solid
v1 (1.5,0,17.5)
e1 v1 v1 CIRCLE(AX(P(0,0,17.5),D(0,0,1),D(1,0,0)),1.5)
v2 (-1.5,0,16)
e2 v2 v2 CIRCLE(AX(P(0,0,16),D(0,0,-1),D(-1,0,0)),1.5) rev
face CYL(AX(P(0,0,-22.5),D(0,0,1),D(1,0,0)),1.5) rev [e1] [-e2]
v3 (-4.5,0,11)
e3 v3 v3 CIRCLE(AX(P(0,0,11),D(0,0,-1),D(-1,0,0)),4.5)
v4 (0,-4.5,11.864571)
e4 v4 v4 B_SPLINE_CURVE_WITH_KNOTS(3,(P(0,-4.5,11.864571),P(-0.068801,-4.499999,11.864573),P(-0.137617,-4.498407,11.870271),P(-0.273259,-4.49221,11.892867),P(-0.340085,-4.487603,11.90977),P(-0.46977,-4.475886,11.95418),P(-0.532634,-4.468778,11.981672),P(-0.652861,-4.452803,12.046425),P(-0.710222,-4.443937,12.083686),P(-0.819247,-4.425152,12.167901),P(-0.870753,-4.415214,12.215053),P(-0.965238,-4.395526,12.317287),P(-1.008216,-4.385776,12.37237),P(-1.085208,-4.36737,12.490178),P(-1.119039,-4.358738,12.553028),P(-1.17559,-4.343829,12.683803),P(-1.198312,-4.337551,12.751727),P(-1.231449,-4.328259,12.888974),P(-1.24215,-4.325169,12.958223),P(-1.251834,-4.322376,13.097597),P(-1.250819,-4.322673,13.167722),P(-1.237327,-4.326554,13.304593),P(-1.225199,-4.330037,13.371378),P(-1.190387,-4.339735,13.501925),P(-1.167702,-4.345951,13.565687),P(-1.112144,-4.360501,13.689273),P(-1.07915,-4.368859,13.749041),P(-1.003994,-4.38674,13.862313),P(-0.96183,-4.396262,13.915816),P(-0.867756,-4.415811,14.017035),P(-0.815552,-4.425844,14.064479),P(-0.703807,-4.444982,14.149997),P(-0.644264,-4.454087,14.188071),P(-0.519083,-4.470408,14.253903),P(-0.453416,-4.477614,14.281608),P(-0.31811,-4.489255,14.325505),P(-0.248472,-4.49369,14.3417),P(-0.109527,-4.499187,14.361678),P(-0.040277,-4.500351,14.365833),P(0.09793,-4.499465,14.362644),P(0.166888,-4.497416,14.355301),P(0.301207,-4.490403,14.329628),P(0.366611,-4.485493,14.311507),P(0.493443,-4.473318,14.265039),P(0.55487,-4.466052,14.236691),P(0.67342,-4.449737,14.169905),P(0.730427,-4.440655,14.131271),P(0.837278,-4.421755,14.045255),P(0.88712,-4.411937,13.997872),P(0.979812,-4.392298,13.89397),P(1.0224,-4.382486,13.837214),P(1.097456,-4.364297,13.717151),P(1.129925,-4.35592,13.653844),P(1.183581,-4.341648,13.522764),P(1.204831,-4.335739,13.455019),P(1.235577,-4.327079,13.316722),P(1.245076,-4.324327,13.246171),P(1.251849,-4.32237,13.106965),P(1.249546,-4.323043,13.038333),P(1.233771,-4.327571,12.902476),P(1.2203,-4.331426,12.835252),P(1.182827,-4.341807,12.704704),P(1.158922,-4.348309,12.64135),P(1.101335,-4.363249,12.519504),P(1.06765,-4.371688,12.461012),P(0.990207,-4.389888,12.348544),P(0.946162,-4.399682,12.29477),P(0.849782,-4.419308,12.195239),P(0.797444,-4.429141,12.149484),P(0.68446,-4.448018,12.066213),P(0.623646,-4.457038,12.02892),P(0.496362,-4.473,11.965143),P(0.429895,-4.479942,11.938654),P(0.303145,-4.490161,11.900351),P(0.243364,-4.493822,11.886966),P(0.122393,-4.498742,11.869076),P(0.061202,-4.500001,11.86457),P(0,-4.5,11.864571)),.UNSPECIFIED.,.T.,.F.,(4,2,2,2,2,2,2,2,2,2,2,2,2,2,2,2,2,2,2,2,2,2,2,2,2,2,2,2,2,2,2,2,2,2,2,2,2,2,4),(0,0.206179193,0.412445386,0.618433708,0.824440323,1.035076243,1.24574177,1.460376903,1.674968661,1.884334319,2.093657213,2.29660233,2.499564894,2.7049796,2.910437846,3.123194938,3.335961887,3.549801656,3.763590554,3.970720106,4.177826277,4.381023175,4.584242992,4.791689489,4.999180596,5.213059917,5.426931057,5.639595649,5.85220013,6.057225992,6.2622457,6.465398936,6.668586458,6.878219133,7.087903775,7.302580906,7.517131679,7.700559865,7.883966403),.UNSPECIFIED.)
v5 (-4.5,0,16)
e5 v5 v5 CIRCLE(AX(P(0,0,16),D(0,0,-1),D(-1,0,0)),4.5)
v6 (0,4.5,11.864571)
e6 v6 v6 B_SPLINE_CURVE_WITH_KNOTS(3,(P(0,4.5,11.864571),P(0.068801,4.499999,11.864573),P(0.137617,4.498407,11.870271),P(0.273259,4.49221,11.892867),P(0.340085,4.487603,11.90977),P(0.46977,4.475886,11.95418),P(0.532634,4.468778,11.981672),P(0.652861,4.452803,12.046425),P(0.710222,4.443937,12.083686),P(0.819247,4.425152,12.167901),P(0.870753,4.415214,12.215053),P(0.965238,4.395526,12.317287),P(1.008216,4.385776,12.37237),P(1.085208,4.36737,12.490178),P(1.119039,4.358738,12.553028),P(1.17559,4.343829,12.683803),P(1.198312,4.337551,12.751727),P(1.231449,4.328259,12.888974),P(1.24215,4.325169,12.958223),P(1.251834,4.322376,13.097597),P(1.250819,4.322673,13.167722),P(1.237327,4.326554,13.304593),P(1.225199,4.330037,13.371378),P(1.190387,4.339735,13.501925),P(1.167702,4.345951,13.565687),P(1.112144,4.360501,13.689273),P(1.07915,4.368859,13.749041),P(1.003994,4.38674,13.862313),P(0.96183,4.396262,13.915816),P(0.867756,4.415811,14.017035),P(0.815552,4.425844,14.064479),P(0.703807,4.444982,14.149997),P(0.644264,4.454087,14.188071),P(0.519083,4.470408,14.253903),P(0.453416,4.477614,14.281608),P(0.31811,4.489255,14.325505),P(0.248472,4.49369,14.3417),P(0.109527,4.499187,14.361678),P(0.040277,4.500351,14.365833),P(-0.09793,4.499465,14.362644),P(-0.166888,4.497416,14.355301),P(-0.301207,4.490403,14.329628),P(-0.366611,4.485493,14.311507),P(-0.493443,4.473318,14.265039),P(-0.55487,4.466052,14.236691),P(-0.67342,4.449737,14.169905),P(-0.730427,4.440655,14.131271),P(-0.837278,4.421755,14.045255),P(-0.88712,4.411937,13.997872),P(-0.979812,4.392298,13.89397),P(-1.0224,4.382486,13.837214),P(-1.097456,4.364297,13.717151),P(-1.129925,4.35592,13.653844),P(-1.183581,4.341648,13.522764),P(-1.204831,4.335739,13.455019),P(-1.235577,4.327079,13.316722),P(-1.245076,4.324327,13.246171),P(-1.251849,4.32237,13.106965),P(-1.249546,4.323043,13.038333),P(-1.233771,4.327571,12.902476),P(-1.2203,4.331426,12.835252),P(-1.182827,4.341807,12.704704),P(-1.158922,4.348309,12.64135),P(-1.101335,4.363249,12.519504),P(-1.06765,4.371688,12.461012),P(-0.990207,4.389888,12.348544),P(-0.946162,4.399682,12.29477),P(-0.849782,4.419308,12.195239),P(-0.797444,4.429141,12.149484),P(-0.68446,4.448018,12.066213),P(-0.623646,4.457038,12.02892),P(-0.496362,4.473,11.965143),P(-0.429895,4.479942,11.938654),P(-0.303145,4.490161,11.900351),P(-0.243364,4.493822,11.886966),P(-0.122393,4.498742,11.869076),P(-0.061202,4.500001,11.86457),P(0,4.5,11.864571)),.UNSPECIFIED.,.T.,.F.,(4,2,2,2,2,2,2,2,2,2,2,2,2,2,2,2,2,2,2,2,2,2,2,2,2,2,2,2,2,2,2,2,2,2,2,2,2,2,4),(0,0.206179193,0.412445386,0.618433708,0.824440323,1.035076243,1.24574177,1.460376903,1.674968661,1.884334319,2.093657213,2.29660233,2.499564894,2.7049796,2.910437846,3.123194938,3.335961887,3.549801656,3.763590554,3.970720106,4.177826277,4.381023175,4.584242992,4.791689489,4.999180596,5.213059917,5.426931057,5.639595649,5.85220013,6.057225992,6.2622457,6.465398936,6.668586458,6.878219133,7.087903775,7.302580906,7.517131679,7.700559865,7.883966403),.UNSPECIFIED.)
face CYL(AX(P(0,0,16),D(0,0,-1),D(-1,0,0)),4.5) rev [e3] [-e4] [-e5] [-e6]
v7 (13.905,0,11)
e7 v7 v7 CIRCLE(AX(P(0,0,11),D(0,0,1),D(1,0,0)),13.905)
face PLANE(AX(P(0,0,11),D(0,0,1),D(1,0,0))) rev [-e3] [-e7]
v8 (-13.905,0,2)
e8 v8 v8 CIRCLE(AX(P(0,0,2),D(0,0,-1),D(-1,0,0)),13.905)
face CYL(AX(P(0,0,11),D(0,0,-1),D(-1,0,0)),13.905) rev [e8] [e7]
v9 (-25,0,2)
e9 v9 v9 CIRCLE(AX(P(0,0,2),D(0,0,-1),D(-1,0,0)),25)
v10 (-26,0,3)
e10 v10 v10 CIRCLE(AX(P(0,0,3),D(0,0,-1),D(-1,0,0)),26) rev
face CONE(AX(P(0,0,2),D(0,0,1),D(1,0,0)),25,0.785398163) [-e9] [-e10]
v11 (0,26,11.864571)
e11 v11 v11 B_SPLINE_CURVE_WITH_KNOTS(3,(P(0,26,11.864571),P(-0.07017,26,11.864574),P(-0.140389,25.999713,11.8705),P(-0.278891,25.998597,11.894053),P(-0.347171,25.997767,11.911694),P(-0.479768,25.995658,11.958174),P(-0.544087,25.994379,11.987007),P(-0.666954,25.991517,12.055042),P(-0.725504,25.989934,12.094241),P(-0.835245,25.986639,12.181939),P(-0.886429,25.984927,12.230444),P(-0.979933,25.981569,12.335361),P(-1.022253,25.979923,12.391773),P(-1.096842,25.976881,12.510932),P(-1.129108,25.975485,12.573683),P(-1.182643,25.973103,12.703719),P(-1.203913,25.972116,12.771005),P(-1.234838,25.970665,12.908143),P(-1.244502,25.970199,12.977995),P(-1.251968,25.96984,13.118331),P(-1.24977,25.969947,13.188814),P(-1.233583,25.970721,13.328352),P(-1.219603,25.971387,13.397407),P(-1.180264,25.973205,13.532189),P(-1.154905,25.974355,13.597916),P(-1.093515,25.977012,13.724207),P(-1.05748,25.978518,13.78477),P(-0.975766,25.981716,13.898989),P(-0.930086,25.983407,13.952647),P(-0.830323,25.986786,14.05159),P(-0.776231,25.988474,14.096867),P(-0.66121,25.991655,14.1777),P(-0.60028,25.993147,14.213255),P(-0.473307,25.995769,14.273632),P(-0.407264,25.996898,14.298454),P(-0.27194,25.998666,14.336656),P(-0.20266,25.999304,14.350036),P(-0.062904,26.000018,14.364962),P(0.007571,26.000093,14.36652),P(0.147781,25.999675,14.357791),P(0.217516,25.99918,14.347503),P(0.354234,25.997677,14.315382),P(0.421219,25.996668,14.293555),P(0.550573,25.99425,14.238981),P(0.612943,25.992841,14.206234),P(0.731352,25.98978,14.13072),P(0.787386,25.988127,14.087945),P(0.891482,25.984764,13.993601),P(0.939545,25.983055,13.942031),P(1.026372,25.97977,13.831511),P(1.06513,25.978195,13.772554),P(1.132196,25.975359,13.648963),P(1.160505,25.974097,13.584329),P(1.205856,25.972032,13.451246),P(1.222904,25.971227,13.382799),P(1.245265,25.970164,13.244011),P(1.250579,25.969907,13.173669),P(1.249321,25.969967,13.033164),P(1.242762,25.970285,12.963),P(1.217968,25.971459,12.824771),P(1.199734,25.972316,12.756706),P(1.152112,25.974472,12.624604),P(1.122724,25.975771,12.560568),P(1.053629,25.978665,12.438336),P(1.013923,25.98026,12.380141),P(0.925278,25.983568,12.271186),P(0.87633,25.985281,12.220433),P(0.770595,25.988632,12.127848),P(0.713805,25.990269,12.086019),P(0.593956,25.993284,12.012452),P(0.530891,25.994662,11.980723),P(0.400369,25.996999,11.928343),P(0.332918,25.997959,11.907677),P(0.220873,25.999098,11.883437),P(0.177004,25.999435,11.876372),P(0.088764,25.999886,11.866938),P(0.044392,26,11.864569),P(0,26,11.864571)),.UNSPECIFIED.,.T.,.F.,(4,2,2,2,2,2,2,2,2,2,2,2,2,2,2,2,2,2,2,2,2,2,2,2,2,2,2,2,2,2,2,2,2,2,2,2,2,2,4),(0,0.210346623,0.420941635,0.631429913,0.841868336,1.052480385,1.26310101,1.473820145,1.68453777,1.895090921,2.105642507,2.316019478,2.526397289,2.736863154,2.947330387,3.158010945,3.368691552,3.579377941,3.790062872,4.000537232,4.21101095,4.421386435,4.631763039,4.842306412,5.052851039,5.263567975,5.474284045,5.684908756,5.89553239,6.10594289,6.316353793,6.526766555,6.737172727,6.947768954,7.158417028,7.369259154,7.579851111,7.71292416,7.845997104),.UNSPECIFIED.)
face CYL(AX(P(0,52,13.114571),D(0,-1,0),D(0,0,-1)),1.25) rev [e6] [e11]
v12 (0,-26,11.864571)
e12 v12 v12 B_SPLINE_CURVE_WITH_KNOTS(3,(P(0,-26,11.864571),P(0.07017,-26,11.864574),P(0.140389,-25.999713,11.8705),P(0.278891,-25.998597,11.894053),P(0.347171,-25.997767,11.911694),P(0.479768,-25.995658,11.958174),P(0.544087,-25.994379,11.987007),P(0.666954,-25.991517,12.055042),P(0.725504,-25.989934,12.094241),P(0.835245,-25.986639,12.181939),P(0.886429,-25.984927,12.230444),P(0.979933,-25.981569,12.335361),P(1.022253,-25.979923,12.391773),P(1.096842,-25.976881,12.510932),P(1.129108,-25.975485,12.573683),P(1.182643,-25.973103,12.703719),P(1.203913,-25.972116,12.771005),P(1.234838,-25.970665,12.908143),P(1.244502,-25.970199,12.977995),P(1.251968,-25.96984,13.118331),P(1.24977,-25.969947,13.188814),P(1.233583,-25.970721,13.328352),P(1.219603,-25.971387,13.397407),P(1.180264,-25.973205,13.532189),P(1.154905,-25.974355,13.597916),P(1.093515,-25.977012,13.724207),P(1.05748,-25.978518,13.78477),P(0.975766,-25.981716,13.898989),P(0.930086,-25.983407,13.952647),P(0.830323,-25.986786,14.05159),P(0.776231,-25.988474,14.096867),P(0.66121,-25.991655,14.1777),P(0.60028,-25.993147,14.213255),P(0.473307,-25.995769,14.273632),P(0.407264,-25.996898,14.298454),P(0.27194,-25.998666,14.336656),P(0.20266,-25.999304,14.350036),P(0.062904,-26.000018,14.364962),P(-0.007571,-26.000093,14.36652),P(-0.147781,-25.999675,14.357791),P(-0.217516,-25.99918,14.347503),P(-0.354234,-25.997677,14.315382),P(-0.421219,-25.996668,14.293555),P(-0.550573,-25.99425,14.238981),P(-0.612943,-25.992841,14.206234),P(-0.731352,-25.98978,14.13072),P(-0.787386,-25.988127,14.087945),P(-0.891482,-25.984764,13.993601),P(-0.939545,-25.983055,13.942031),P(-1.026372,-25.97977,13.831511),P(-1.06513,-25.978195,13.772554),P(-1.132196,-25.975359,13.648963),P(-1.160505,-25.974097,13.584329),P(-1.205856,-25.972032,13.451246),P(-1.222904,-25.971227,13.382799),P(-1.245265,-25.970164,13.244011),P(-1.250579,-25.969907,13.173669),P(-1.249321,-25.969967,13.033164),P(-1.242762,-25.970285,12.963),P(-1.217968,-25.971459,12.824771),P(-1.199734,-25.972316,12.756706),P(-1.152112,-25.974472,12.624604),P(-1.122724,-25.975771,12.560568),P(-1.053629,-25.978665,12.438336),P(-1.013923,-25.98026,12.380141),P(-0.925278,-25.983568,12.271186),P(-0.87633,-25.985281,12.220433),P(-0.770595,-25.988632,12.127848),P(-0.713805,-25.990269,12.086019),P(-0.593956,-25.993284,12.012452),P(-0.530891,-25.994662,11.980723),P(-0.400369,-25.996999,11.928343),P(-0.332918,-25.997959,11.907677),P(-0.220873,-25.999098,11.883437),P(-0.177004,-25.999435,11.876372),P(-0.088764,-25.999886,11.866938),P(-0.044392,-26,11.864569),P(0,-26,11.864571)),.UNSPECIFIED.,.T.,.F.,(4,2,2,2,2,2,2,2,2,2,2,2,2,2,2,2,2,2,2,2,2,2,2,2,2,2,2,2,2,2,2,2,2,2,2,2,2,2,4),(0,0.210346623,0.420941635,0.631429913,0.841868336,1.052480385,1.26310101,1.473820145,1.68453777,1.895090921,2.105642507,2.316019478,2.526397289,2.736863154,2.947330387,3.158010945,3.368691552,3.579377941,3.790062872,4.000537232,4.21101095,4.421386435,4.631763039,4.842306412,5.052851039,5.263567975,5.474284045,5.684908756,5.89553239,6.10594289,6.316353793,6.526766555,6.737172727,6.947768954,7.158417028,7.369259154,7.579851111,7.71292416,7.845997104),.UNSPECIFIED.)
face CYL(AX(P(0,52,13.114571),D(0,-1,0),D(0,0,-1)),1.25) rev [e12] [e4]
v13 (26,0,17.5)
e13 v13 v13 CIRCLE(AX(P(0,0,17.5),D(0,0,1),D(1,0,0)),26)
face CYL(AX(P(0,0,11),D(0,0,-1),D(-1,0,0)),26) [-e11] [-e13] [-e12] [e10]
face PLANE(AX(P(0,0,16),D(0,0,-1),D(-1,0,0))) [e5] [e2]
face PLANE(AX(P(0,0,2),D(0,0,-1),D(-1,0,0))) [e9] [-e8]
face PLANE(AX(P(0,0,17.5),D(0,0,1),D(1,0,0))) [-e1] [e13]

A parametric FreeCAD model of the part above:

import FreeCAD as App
import Part
import Sketcher

V = App.Vector
Q = App.Units.Quantity


def edges_at(feature, points):
    """Names of the edges that pass closest to the given points."""
    edges = feature.Shape.Edges
    near = lambda p: min(range(len(edges)), key=lambda i: edges[i].distToShape(Part.Vertex(*p))[0])
    return sorted({f"Edge{near(p) + 1}" for p in points})

doc = App.newDocument("Part")
params = doc.addObject("Spreadsheet::Sheet", "Params")
for row, (alias, value) in enumerate([
    ("sketch1_diameter", "52 mm"),
    ("sketch1_diameter2", "27.81 mm"),
    ("pad1_length", "11 mm"),
    ("sketch2_diameter", "52 mm"),
    ("pad2_length", "6.5 mm"),
    ("sketch3_diameter", "3 mm"),
    ("pocket1_length", "40 mm"),
    ("sketch4_diameter", "9 mm"),
    ("pocket2_length", "5 mm"),
    ("sketch5_diameter", "82 mm"),
    ("pocket3_length", "2 mm"),
    ("chamfer_size", "1 mm"),
    ("sketch6_diameter", "2.5 mm"),
], start=1):
    params.set(f"A{row}", alias)
    params.set(f"B{row}", "=" + value)
    params.setAlias(f"B{row}", alias)

body = doc.addObject("PartDesign::Body", "Body")

sketch1 = doc.addObject("Sketcher::SketchObject", "Sketch")
body.addObject(sketch1)
sketch1.AttachmentSupport = (doc.XY_Plane, [""])
sketch1.MapMode = "FlatFace"
sketch1.addGeometry([
    Part.Circle(V(0, 0, 0), V(0, 0, 1), 26),
    Part.Circle(V(0, 0, 0), V(0, 0, 1), 14),
], False)
sketch1.addConstraint([
    Sketcher.Constraint("Coincident", 0, 3, -1, 1),
    Sketcher.Constraint("Coincident", 1, 3, -1, 1),
    Sketcher.Constraint("Diameter", 0, Q("52 mm")),
    Sketcher.Constraint("Diameter", 1, Q("27.81 mm")),
])
sketch1.setExpression("Constraints[2]", "Params.sketch1_diameter")
sketch1.setExpression("Constraints[3]", "Params.sketch1_diameter2")
pad1 = doc.addObject("PartDesign::Pad", "Pad")
body.addObject(pad1)
pad1.Profile = sketch1
pad1.setExpression("Length", "Params.pad1_length")

sketch2 = doc.addObject("Sketcher::SketchObject", "Sketch001")
body.addObject(sketch2)
sketch2.AttachmentSupport = (doc.XY_Plane, [""])
sketch2.MapMode = "FlatFace"
sketch2.AttachmentOffset = App.Placement(V(0, 0, 11), App.Rotation())
sketch2.addGeometry(Part.Circle(V(0, 0, 0), V(0, 0, 1), 26), False)
sketch2.addConstraint([
    Sketcher.Constraint("Coincident", 0, 3, -1, 1),
    Sketcher.Constraint("Diameter", 0, Q("52 mm")),
])
sketch2.setExpression("Constraints[1]", "Params.sketch2_diameter")
pad2 = doc.addObject("PartDesign::Pad", "Pad001")
body.addObject(pad2)
pad2.Profile = sketch2
pad2.setExpression("Length", "Params.pad2_length")

sketch3 = doc.addObject("Sketcher::SketchObject", "Sketch002")
body.addObject(sketch3)
sketch3.AttachmentSupport = (doc.XY_Plane, [""])
sketch3.MapMode = "FlatFace"
sketch3.AttachmentOffset = App.Placement(V(0, 0, 17.5), App.Rotation())
sketch3.addGeometry(Part.Circle(V(0, 0, 0), V(0, 0, 1), 1.5), False)
sketch3.addConstraint([
    Sketcher.Constraint("Coincident", 0, 3, -1, 1),
    Sketcher.Constraint("Diameter", 0, Q("3 mm")),
])
sketch3.setExpression("Constraints[1]", "Params.sketch3_diameter")
pocket1 = doc.addObject("PartDesign::Pocket", "Pocket")
body.addObject(pocket1)
pocket1.Profile = sketch3
pocket1.setExpression("Length", "Params.pocket1_length")

sketch4 = doc.addObject("Sketcher::SketchObject", "Sketch003")
body.addObject(sketch4)
sketch4.AttachmentSupport = (doc.XY_Plane, [""])
sketch4.MapMode = "FlatFace"
sketch4.AttachmentOffset = App.Placement(V(0, 0, 11), App.Rotation())
sketch4.addGeometry(Part.Circle(V(0, 0, 0), V(0, 0, 1), 4.5), False)
sketch4.addConstraint([
    Sketcher.Constraint("Coincident", 0, 3, -1, 1),
    Sketcher.Constraint("Diameter", 0, Q("9 mm")),
])
sketch4.setExpression("Constraints[1]", "Params.sketch4_diameter")
pocket2 = doc.addObject("PartDesign::Pocket", "Pocket001")
body.addObject(pocket2)
pocket2.Profile = sketch4
pocket2.setExpression("Length", "Params.pocket2_length")
pocket2.Reversed = True

sketch5 = doc.addObject("Sketcher::SketchObject", "Sketch004")
body.addObject(sketch5)
sketch5.AttachmentSupport = (doc.XY_Plane, [""])
sketch5.MapMode = "FlatFace"
sketch5.addGeometry(Part.Circle(V(0, 0, 0), V(0, 0, 1), 41), False)
sketch5.addConstraint([
    Sketcher.Constraint("Coincident", 0, 3, -1, 1),
    Sketcher.Constraint("Diameter", 0, Q("82 mm")),
])
sketch5.setExpression("Constraints[1]", "Params.sketch5_diameter")
pocket3 = doc.addObject("PartDesign::Pocket", "Pocket002")
body.addObject(pocket3)
pocket3.Profile = sketch5
pocket3.setExpression("Length", "Params.pocket3_length")
pocket3.Reversed = True
doc.recompute()

chamfer = doc.addObject("PartDesign::Chamfer", "Chamfer")
body.addObject(chamfer)
chamfer.Base = (pocket3, edges_at(pocket3, [(-26, 0, 2)]))
chamfer.setExpression("Size", "Params.chamfer_size")

sketch6 = doc.addObject("Sketcher::SketchObject", "Sketch005")
body.addObject(sketch6)
sketch6.AttachmentSupport = (doc.XZ_Plane, [""])
sketch6.MapMode = "FlatFace"
sketch6.addGeometry(Part.Circle(V(0, 13.1, 0), V(0, 0, 1), 1.2), False)
sketch6.addConstraint([
    Sketcher.Constraint("PointOnObject", 0, 3, -2),
    Sketcher.Constraint("Diameter", 0, Q("2.5 mm")),
    Sketcher.Constraint("DistanceY", -1, 1, 0, 3, Q("13.114571 mm")),
])
sketch6.setExpression("Constraints[1]", "Params.sketch6_diameter")
pocket4 = doc.addObject("PartDesign::Pocket", "Pocket003")
body.addObject(pocket4)
pocket4.Profile = sketch6
pocket4.Type = "ThroughAll"
pocket4.Midplane = True

doc.recompute()
